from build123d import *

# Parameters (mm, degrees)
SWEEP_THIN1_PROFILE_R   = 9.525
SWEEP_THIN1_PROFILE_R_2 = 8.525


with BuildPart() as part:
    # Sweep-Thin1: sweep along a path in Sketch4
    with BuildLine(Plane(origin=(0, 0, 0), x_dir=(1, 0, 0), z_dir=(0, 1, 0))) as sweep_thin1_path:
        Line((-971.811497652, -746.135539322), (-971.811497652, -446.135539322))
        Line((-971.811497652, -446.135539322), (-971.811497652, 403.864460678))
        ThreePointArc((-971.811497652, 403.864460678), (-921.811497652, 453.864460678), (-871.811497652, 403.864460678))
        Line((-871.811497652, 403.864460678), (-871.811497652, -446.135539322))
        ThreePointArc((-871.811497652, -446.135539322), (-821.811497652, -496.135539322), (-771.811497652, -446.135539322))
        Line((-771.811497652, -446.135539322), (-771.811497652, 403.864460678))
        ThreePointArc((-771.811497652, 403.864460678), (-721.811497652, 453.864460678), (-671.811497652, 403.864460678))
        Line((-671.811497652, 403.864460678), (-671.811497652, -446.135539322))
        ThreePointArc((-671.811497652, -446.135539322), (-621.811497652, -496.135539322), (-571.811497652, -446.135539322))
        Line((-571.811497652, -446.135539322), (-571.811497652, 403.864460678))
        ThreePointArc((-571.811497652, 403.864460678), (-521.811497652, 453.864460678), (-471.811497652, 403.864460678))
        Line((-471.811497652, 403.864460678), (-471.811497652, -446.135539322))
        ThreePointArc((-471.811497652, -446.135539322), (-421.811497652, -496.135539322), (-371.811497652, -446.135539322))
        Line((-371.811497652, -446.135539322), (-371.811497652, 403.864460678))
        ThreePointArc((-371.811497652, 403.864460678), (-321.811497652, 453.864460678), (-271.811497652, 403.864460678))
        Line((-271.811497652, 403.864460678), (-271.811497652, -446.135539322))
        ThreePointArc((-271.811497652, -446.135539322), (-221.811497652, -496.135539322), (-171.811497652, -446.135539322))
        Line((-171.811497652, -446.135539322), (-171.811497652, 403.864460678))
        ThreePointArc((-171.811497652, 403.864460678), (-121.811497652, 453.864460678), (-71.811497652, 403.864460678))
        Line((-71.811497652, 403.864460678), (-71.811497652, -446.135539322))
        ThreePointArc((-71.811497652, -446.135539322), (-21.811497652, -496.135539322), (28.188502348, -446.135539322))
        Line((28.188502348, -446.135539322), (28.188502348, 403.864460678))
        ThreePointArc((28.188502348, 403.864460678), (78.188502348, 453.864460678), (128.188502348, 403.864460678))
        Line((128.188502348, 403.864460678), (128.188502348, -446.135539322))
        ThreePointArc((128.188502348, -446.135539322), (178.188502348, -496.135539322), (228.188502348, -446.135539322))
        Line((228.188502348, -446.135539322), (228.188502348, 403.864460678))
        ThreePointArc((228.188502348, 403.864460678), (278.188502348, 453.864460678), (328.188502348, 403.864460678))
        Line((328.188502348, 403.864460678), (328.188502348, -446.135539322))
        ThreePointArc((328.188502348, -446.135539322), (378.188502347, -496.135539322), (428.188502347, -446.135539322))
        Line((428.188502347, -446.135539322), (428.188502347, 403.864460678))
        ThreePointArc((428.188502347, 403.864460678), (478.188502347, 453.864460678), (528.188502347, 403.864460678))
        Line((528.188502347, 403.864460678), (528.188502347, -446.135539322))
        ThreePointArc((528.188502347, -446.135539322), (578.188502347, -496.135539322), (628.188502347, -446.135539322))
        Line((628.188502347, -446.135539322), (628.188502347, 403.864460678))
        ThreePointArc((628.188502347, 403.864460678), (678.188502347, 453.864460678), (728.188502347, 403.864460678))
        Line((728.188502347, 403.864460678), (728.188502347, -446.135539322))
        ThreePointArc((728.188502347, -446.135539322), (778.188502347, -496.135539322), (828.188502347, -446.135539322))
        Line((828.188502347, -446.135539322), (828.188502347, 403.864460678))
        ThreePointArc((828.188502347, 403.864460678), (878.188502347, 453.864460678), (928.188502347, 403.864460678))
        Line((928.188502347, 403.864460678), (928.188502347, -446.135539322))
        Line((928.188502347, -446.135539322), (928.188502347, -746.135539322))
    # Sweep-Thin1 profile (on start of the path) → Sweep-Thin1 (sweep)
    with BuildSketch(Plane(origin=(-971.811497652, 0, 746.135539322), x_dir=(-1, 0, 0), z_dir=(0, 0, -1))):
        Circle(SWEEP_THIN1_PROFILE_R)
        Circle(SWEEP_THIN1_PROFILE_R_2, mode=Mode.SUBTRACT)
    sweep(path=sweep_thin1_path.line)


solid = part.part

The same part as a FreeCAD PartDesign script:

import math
import FreeCAD as App
import Part
import Sketcher
from FreeCAD import Vector

doc = App.newDocument("Part")
params = doc.addObject("Spreadsheet::Sheet", "Params")
for row, (alias, value) in enumerate([
    ("sketch1_diameter", "19.05 mm"),
    ("sketch1_diameter2", "17.05 mm"),
    ("sketch2_radius", "50 mm"),
    ("sketch2_height", "1150 mm"),
    ("sketch2_height2", "850 mm"),
], start=1):
    params.set(f"A{row}", alias)
    params.set(f"B{row}", "=" + value)
    params.setAlias(f"B{row}", alias)

body = doc.addObject("PartDesign::Body", "Body")

# Sketch on XY plane
sketch1 = body.newObject("Sketcher::SketchObject", "Sketch")
sketch1.AttachmentSupport = (doc.getObject("XY_Plane"), [""])
sketch1.MapMode = "FlatFace"
sketch1.AttachmentOffset = App.Placement(Vector(0, 0, 746.135539), App.Rotation())
sketch1.addGeometry(Part.Circle(Vector(-972, 0, 0), Vector(0, 0, 1), 10), False)
sketch1.addGeometry(Part.Circle(Vector(-972, 0, 0), Vector(0, 0, 1), 9), False)
sketch1.addConstraint(Sketcher.Constraint("Coincident", 1, 3, 0, 3))
sketch1.addConstraint(Sketcher.Constraint("PointOnObject", 0, 3, -1))
sketch1.addConstraint(Sketcher.Constraint("Diameter", 0, 19.05))
sketch1.addConstraint(Sketcher.Constraint("Diameter", 1, 17.05))
sketch1.addConstraint(Sketcher.Constraint("DistanceX", 0, 3, -1, 1, 971.811498))
sketch1.setExpression("Constraints[2]", "Params.sketch1_diameter")
sketch1.setExpression("Constraints[3]", "Params.sketch1_diameter2")

# Sketch on XZ plane
sketch2 = body.newObject("Sketcher::SketchObject", "Sketch001")
sketch2.AttachmentSupport = (doc.getObject("XZ_Plane"), [""])
sketch2.MapMode = "FlatFace"
sketch2.addGeometry(Part.LineSegment(Vector(-972, 746, 0), Vector(-972, -404, 0)), False)
sketch2.addGeometry(Part.ArcOfCircle(Part.Circle(Vector(-922, -404, 0), Vector(0, 0, 1), 50), math.radians(180), math.radians(360)), False)
sketch2.addGeometry(Part.LineSegment(Vector(-872, -404, 0), Vector(-872, 446, 0)), False)
sketch2.addGeometry(Part.ArcOfCircle(Part.Circle(Vector(-822, 446, 0), Vector(0, 0, 1), 50), math.radians(0), math.radians(180)), False)
sketch2.addGeometry(Part.LineSegment(Vector(-772, 446, 0), Vector(-772, -404, 0)), False)
sketch2.addGeometry(Part.ArcOfCircle(Part.Circle(Vector(-722, -404, 0), Vector(0, 0, 1), 50), math.radians(180), math.radians(360)), False)
sketch2.addGeometry(Part.LineSegment(Vector(-672, -404, 0), Vector(-672, 446, 0)), False)
sketch2.addGeometry(Part.ArcOfCircle(Part.Circle(Vector(-622, 446, 0), Vector(0, 0, 1), 50), math.radians(0), math.radians(180)), False)
sketch2.addGeometry(Part.LineSegment(Vector(-572, 446, 0), Vector(-572, -404, 0)), False)
sketch2.addGeometry(Part.ArcOfCircle(Part.Circle(Vector(-522, -404, 0), Vector(0, 0, 1), 50), math.radians(180), math.radians(360)), False)
sketch2.addGeometry(Part.LineSegment(Vector(-472, -404, 0), Vector(-472, 446, 0)), False)
sketch2.addGeometry(Part.ArcOfCircle(Part.Circle(Vector(-422, 446, 0), Vector(0, 0, 1), 50), math.radians(0), math.radians(180)), False)
sketch2.addGeometry(Part.LineSegment(Vector(-372, 446, 0), Vector(-372, -404, 0)), False)
sketch2.addGeometry(Part.ArcOfCircle(Part.Circle(Vector(-322, -404, 0), Vector(0, 0, 1), 50), math.radians(180), math.radians(360)), False)
sketch2.addGeometry(Part.LineSegment(Vector(-272, -404, 0), Vector(-272, 446, 0)), False)
sketch2.addGeometry(Part.ArcOfCircle(Part.Circle(Vector(-222, 446, 0), Vector(0, 0, 1), 50), math.radians(0), math.radians(180)), False)
sketch2.addGeometry(Part.LineSegment(Vector(-172, 446, 0), Vector(-172, -404, 0)), False)
sketch2.addGeometry(Part.ArcOfCircle(Part.Circle(Vector(-122, -404, 0), Vector(0, 0, 1), 50), math.radians(180), math.radians(360)), False)
sketch2.addGeometry(Part.LineSegment(Vector(-72, -404, 0), Vector(-72, 446, 0)), False)
sketch2.addGeometry(Part.ArcOfCircle(Part.Circle(Vector(-22, 446, 0), Vector(0, 0, 1), 50), math.radians(0), math.radians(180)), False)
sketch2.addGeometry(Part.LineSegment(Vector(28, 446, 0), Vector(28, -404, 0)), False)
sketch2.addGeometry(Part.ArcOfCircle(Part.Circle(Vector(78, -404, 0), Vector(0, 0, 1), 50), math.radians(180), math.radians(360)), False)
sketch2.addGeometry(Part.LineSegment(Vector(128, -404, 0), Vector(128, 446, 0)), False)
sketch2.addGeometry(Part.ArcOfCircle(Part.Circle(Vector(178, 446, 0), Vector(0, 0, 1), 50), math.radians(0), math.radians(180)), False)
sketch2.addGeometry(Part.LineSegment(Vector(228, 446, 0), Vector(228, -404, 0)), False)
sketch2.addGeometry(Part.ArcOfCircle(Part.Circle(Vector(278, -404, 0), Vector(0, 0, 1), 50), math.radians(180), math.radians(360)), False)
sketch2.addGeometry(Part.LineSegment(Vector(328, -404, 0), Vector(328, 446, 0)), False)
sketch2.addGeometry(Part.ArcOfCircle(Part.Circle(Vector(378, 446, 0), Vector(0, 0, 1), 50), math.radians(0), math.radians(180)), False)
sketch2.addGeometry(Part.LineSegment(Vector(428, 446, 0), Vector(428, -404, 0)), False)
sketch2.addGeometry(Part.ArcOfCircle(Part.Circle(Vector(478, -404, 0), Vector(0, 0, 1), 50), math.radians(180), math.radians(360)), False)
sketch2.addGeometry(Part.LineSegment(Vector(528, -404, 0), Vector(528, 446, 0)), False)
sketch2.addGeometry(Part.ArcOfCircle(Part.Circle(Vector(578, 446, 0), Vector(0, 0, 1), 50), math.radians(0), math.radians(180)), False)
sketch2.addGeometry(Part.LineSegment(Vector(628, 446, 0), Vector(628, -404, 0)), False)
sketch2.addGeometry(Part.ArcOfCircle(Part.Circle(Vector(678, -404, 0), Vector(0, 0, 1), 50), math.radians(180), math.radians(360)), False)
sketch2.addGeometry(Part.LineSegment(Vector(728, -404, 0), Vector(728, 446, 0)), False)
sketch2.addGeometry(Part.ArcOfCircle(Part.Circle(Vector(778, 446, 0), Vector(0, 0, 1), 50), math.radians(0), math.radians(180)), False)
sketch2.addGeometry(Part.LineSegment(Vector(828, 446, 0), Vector(828, -404, 0)), False)
sketch2.addGeometry(Part.ArcOfCircle(Part.Circle(Vector(878, -404, 0), Vector(0, 0, 1), 50), math.radians(180), math.radians(360)), False)
sketch2.addGeometry(Part.LineSegment(Vector(928, -404, 0), Vector(928, 746, 0)), False)
sketch2.addConstraint(Sketcher.Constraint("Tangent", 0, 2, 1, 1))
sketch2.addConstraint(Sketcher.Constraint("Tangent", 1, 2, 2, 1))
sketch2.addConstraint(Sketcher.Constraint("Tangent", 2, 2, 3, 2))
sketch2.addConstraint(Sketcher.Constraint("Tangent", 3, 1, 4, 1))
sketch2.addConstraint(Sketcher.Constraint("Tangent", 4, 2, 5, 1))
sketch2.addConstraint(Sketcher.Constraint("Tangent", 5, 2, 6, 1))
sketch2.addConstraint(Sketcher.Constraint("Tangent", 6, 2, 7, 2))
sketch2.addConstraint(Sketcher.Constraint("Tangent", 7, 1, 8, 1))
sketch2.addConstraint(Sketcher.Constraint("Tangent", 8, 2, 9, 1))
sketch2.addConstraint(Sketcher.Constraint("Tangent", 9, 2, 10, 1))
sketch2.addConstraint(Sketcher.Constraint("Tangent", 10, 2, 11, 2))
sketch2.addConstraint(Sketcher.Constraint("Tangent", 11, 1, 12, 1))
sketch2.addConstraint(Sketcher.Constraint("Tangent", 12, 2, 13, 1))
sketch2.addConstraint(Sketcher.Constraint("Tangent", 13, 2, 14, 1))
sketch2.addConstraint(Sketcher.Constraint("Tangent", 14, 2, 15, 2))
sketch2.addConstraint(Sketcher.Constraint("Tangent", 15, 1, 16, 1))
sketch2.addConstraint(Sketcher.Constraint("Tangent", 16, 2, 17, 1))
sketch2.addConstraint(Sketcher.Constraint("Tangent", 17, 2, 18, 1))
sketch2.addConstraint(Sketcher.Constraint("Tangent", 18, 2, 19, 2))
sketch2.addConstraint(Sketcher.Constraint("Tangent", 19, 1, 20, 1))
sketch2.addConstraint(Sketcher.Constraint("Tangent", 20, 2, 21, 1))
sketch2.addConstraint(Sketcher.Constraint("Tangent", 21, 2, 22, 1))
sketch2.addConstraint(Sketcher.Constraint("Tangent", 22, 2, 23, 2))
sketch2.addConstraint(Sketcher.Constraint("Tangent", 23, 1, 24, 1))
sketch2.addConstraint(Sketcher.Constraint("Tangent", 24, 2, 25, 1))
sketch2.addConstraint(Sketcher.Constraint("Tangent", 25, 2, 26, 1))
sketch2.addConstraint(Sketcher.Constraint("Tangent", 26, 2, 27, 2))
sketch2.addConstraint(Sketcher.Constraint("Tangent", 27, 1, 28, 1))
sketch2.addConstraint(Sketcher.Constraint("Tangent", 28, 2, 29, 1))
sketch2.addConstraint(Sketcher.Constraint("Tangent", 29, 2, 30, 1))
sketch2.addConstraint(Sketcher.Constraint("Tangent", 30, 2, 31, 2))
sketch2.addConstraint(Sketcher.Constraint("Tangent", 31, 1, 32, 1))
sketch2.addConstraint(Sketcher.Constraint("Tangent", 32, 2, 33, 1))
sketch2.addConstraint(Sketcher.Constraint("Tangent", 33, 2, 34, 1))
sketch2.addConstraint(Sketcher.Constraint("Tangent", 34, 2, 35, 2))
sketch2.addConstraint(Sketcher.Constraint("Tangent", 35, 1, 36, 1))
sketch2.addConstraint(Sketcher.Constraint("Tangent", 36, 2, 37, 1))
sketch2.addConstraint(Sketcher.Constraint("Tangent", 37, 2, 38, 1))
sketch2.addConstraint(Sketcher.Constraint("Vertical", 0))
sketch2.addConstraint(Sketcher.Constraint("Vertical", 2))
sketch2.addConstraint(Sketcher.Constraint("Vertical", 4))
sketch2.addConstraint(Sketcher.Constraint("Vertical", 6))
sketch2.addConstraint(Sketcher.Constraint("Vertical", 8))
sketch2.addConstraint(Sketcher.Constraint("Vertical", 10))
sketch2.addConstraint(Sketcher.Constraint("Vertical", 12))
sketch2.addConstraint(Sketcher.Constraint("Vertical", 14))
sketch2.addConstraint(Sketcher.Constraint("Vertical", 16))
sketch2.addConstraint(Sketcher.Constraint("Vertical", 18))
sketch2.addConstraint(Sketcher.Constraint("Vertical", 20))
sketch2.addConstraint(Sketcher.Constraint("Vertical", 22))
sketch2.addConstraint(Sketcher.Constraint("Vertical", 24))
sketch2.addConstraint(Sketcher.Constraint("Vertical", 26))
sketch2.addConstraint(Sketcher.Constraint("Vertical", 28))
sketch2.addConstraint(Sketcher.Constraint("Vertical", 30))
sketch2.addConstraint(Sketcher.Constraint("Vertical", 32))
sketch2.addConstraint(Sketcher.Constraint("Vertical", 34))
sketch2.addConstraint(Sketcher.Constraint("Vertical", 36))
sketch2.addConstraint(Sketcher.Constraint("Vertical", 38))
sketch2.addConstraint(Sketcher.Constraint("Equal", 1, 3))
sketch2.addConstraint(Sketcher.Constraint("Equal", 3, 5))
sketch2.addConstraint(Sketcher.Constraint("Equal", 5, 7))
sketch2.addConstraint(Sketcher.Constraint("Equal", 7, 9))
sketch2.addConstraint(Sketcher.Constraint("Equal", 9, 11))
sketch2.addConstraint(Sketcher.Constraint("Equal", 11, 13))
sketch2.addConstraint(Sketcher.Constraint("Equal", 13, 15))
sketch2.addConstraint(Sketcher.Constraint("Equal", 15, 17))
sketch2.addConstraint(Sketcher.Constraint("Equal", 17, 19))
sketch2.addConstraint(Sketcher.Constraint("Equal", 19, 21))
sketch2.addConstraint(Sketcher.Constraint("Equal", 21, 23))
sketch2.addConstraint(Sketcher.Constraint("Equal", 23, 25))
sketch2.addConstraint(Sketcher.Constraint("Equal", 25, 27))
sketch2.addConstraint(Sketcher.Constraint("Equal", 27, 29))
sketch2.addConstraint(Sketcher.Constraint("Equal", 29, 31))
sketch2.addConstraint(Sketcher.Constraint("Equal", 31, 33))
sketch2.addConstraint(Sketcher.Constraint("Equal", 33, 35))
sketch2.addConstraint(Sketcher.Constraint("Equal", 35, 37))
sketch2.addConstraint(Sketcher.Constraint("Horizontal", 1, 3, 5, 3))
sketch2.addConstraint(Sketcher.Constraint("Horizontal", 3, 3, 7, 3))
sketch2.addConstraint(Sketcher.Constraint("Horizontal", 5, 3, 9, 3))
sketch2.addConstraint(Sketcher.Constraint("Horizontal", 7, 3, 11, 3))
sketch2.addConstraint(Sketcher.Constraint("Horizontal", 9, 3, 13, 3))
sketch2.addConstraint(Sketcher.Constraint("Horizontal", 11, 3, 15, 3))
sketch2.addConstraint(Sketcher.Constraint("Horizontal", 13, 3, 17, 3))
sketch2.addConstraint(Sketcher.Constraint("Horizontal", 15, 3, 19, 3))
sketch2.addConstraint(Sketcher.Constraint("Horizontal", 17, 3, 21, 3))
sketch2.addConstraint(Sketcher.Constraint("Horizontal", 19, 3, 23, 3))
sketch2.addConstraint(Sketcher.Constraint("Horizontal", 21, 3, 25, 3))
sketch2.addConstraint(Sketcher.Constraint("Horizontal", 23, 3, 27, 3))
sketch2.addConstraint(Sketcher.Constraint("Horizontal", 25, 3, 29, 3))
sketch2.addConstraint(Sketcher.Constraint("Horizontal", 27, 3, 31, 3))
sketch2.addConstraint(Sketcher.Constraint("Horizontal", 29, 3, 33, 3))
sketch2.addConstraint(Sketcher.Constraint("Horizontal", 31, 3, 35, 3))
sketch2.addConstraint(Sketcher.Constraint("Horizontal", 33, 3, 37, 3))
sketch2.addConstraint(Sketcher.Constraint("Horizontal", 0, 1, 38, 2))
sketch2.addConstraint(Sketcher.Constraint("Radius", 1, 50.0))
sketch2.addConstraint(Sketcher.Constraint("DistanceY", 0, 2, 0, 1, 1150.0))
sketch2.addConstraint(Sketcher.Constraint("DistanceY", 2, 1, 2, 2, 850.0))
sketch2.addConstraint(Sketcher.Constraint("DistanceY", 1, 3, -1, 1, 403.864461))
sketch2.addConstraint(Sketcher.Constraint("DistanceX", 1, 3, -1, 1, 921.811498))
sketch2.setExpression("Constraints[94]", "Params.sketch2_radius")
sketch2.setExpression("Constraints[95]", "Params.sketch2_height")
sketch2.setExpression("Constraints[96]", "Params.sketch2_height2")
doc.recompute()

additivepipe = body.newObject("PartDesign::AdditivePipe", "AdditivePipe")
additivepipe.Profile = sketch1
additivepipe.Spine = (sketch2, ["Edge1", "Edge2", "Edge3", "Edge4", "Edge5", "Edge6", "Edge7", "Edge8", "Edge9", "Edge10", "Edge11", "Edge12", "Edge13", "Edge14", "Edge15", "Edge16", "Edge17", "Edge18", "Edge19", "Edge20", "Edge21", "Edge22", "Edge23", "Edge24", "Edge25", "Edge26", "Edge27", "Edge28", "Edge29", "Edge30", "Edge31", "Edge32", "Edge33", "Edge34", "Edge35", "Edge36", "Edge37", "Edge38", "Edge39"])

doc.recompute()
